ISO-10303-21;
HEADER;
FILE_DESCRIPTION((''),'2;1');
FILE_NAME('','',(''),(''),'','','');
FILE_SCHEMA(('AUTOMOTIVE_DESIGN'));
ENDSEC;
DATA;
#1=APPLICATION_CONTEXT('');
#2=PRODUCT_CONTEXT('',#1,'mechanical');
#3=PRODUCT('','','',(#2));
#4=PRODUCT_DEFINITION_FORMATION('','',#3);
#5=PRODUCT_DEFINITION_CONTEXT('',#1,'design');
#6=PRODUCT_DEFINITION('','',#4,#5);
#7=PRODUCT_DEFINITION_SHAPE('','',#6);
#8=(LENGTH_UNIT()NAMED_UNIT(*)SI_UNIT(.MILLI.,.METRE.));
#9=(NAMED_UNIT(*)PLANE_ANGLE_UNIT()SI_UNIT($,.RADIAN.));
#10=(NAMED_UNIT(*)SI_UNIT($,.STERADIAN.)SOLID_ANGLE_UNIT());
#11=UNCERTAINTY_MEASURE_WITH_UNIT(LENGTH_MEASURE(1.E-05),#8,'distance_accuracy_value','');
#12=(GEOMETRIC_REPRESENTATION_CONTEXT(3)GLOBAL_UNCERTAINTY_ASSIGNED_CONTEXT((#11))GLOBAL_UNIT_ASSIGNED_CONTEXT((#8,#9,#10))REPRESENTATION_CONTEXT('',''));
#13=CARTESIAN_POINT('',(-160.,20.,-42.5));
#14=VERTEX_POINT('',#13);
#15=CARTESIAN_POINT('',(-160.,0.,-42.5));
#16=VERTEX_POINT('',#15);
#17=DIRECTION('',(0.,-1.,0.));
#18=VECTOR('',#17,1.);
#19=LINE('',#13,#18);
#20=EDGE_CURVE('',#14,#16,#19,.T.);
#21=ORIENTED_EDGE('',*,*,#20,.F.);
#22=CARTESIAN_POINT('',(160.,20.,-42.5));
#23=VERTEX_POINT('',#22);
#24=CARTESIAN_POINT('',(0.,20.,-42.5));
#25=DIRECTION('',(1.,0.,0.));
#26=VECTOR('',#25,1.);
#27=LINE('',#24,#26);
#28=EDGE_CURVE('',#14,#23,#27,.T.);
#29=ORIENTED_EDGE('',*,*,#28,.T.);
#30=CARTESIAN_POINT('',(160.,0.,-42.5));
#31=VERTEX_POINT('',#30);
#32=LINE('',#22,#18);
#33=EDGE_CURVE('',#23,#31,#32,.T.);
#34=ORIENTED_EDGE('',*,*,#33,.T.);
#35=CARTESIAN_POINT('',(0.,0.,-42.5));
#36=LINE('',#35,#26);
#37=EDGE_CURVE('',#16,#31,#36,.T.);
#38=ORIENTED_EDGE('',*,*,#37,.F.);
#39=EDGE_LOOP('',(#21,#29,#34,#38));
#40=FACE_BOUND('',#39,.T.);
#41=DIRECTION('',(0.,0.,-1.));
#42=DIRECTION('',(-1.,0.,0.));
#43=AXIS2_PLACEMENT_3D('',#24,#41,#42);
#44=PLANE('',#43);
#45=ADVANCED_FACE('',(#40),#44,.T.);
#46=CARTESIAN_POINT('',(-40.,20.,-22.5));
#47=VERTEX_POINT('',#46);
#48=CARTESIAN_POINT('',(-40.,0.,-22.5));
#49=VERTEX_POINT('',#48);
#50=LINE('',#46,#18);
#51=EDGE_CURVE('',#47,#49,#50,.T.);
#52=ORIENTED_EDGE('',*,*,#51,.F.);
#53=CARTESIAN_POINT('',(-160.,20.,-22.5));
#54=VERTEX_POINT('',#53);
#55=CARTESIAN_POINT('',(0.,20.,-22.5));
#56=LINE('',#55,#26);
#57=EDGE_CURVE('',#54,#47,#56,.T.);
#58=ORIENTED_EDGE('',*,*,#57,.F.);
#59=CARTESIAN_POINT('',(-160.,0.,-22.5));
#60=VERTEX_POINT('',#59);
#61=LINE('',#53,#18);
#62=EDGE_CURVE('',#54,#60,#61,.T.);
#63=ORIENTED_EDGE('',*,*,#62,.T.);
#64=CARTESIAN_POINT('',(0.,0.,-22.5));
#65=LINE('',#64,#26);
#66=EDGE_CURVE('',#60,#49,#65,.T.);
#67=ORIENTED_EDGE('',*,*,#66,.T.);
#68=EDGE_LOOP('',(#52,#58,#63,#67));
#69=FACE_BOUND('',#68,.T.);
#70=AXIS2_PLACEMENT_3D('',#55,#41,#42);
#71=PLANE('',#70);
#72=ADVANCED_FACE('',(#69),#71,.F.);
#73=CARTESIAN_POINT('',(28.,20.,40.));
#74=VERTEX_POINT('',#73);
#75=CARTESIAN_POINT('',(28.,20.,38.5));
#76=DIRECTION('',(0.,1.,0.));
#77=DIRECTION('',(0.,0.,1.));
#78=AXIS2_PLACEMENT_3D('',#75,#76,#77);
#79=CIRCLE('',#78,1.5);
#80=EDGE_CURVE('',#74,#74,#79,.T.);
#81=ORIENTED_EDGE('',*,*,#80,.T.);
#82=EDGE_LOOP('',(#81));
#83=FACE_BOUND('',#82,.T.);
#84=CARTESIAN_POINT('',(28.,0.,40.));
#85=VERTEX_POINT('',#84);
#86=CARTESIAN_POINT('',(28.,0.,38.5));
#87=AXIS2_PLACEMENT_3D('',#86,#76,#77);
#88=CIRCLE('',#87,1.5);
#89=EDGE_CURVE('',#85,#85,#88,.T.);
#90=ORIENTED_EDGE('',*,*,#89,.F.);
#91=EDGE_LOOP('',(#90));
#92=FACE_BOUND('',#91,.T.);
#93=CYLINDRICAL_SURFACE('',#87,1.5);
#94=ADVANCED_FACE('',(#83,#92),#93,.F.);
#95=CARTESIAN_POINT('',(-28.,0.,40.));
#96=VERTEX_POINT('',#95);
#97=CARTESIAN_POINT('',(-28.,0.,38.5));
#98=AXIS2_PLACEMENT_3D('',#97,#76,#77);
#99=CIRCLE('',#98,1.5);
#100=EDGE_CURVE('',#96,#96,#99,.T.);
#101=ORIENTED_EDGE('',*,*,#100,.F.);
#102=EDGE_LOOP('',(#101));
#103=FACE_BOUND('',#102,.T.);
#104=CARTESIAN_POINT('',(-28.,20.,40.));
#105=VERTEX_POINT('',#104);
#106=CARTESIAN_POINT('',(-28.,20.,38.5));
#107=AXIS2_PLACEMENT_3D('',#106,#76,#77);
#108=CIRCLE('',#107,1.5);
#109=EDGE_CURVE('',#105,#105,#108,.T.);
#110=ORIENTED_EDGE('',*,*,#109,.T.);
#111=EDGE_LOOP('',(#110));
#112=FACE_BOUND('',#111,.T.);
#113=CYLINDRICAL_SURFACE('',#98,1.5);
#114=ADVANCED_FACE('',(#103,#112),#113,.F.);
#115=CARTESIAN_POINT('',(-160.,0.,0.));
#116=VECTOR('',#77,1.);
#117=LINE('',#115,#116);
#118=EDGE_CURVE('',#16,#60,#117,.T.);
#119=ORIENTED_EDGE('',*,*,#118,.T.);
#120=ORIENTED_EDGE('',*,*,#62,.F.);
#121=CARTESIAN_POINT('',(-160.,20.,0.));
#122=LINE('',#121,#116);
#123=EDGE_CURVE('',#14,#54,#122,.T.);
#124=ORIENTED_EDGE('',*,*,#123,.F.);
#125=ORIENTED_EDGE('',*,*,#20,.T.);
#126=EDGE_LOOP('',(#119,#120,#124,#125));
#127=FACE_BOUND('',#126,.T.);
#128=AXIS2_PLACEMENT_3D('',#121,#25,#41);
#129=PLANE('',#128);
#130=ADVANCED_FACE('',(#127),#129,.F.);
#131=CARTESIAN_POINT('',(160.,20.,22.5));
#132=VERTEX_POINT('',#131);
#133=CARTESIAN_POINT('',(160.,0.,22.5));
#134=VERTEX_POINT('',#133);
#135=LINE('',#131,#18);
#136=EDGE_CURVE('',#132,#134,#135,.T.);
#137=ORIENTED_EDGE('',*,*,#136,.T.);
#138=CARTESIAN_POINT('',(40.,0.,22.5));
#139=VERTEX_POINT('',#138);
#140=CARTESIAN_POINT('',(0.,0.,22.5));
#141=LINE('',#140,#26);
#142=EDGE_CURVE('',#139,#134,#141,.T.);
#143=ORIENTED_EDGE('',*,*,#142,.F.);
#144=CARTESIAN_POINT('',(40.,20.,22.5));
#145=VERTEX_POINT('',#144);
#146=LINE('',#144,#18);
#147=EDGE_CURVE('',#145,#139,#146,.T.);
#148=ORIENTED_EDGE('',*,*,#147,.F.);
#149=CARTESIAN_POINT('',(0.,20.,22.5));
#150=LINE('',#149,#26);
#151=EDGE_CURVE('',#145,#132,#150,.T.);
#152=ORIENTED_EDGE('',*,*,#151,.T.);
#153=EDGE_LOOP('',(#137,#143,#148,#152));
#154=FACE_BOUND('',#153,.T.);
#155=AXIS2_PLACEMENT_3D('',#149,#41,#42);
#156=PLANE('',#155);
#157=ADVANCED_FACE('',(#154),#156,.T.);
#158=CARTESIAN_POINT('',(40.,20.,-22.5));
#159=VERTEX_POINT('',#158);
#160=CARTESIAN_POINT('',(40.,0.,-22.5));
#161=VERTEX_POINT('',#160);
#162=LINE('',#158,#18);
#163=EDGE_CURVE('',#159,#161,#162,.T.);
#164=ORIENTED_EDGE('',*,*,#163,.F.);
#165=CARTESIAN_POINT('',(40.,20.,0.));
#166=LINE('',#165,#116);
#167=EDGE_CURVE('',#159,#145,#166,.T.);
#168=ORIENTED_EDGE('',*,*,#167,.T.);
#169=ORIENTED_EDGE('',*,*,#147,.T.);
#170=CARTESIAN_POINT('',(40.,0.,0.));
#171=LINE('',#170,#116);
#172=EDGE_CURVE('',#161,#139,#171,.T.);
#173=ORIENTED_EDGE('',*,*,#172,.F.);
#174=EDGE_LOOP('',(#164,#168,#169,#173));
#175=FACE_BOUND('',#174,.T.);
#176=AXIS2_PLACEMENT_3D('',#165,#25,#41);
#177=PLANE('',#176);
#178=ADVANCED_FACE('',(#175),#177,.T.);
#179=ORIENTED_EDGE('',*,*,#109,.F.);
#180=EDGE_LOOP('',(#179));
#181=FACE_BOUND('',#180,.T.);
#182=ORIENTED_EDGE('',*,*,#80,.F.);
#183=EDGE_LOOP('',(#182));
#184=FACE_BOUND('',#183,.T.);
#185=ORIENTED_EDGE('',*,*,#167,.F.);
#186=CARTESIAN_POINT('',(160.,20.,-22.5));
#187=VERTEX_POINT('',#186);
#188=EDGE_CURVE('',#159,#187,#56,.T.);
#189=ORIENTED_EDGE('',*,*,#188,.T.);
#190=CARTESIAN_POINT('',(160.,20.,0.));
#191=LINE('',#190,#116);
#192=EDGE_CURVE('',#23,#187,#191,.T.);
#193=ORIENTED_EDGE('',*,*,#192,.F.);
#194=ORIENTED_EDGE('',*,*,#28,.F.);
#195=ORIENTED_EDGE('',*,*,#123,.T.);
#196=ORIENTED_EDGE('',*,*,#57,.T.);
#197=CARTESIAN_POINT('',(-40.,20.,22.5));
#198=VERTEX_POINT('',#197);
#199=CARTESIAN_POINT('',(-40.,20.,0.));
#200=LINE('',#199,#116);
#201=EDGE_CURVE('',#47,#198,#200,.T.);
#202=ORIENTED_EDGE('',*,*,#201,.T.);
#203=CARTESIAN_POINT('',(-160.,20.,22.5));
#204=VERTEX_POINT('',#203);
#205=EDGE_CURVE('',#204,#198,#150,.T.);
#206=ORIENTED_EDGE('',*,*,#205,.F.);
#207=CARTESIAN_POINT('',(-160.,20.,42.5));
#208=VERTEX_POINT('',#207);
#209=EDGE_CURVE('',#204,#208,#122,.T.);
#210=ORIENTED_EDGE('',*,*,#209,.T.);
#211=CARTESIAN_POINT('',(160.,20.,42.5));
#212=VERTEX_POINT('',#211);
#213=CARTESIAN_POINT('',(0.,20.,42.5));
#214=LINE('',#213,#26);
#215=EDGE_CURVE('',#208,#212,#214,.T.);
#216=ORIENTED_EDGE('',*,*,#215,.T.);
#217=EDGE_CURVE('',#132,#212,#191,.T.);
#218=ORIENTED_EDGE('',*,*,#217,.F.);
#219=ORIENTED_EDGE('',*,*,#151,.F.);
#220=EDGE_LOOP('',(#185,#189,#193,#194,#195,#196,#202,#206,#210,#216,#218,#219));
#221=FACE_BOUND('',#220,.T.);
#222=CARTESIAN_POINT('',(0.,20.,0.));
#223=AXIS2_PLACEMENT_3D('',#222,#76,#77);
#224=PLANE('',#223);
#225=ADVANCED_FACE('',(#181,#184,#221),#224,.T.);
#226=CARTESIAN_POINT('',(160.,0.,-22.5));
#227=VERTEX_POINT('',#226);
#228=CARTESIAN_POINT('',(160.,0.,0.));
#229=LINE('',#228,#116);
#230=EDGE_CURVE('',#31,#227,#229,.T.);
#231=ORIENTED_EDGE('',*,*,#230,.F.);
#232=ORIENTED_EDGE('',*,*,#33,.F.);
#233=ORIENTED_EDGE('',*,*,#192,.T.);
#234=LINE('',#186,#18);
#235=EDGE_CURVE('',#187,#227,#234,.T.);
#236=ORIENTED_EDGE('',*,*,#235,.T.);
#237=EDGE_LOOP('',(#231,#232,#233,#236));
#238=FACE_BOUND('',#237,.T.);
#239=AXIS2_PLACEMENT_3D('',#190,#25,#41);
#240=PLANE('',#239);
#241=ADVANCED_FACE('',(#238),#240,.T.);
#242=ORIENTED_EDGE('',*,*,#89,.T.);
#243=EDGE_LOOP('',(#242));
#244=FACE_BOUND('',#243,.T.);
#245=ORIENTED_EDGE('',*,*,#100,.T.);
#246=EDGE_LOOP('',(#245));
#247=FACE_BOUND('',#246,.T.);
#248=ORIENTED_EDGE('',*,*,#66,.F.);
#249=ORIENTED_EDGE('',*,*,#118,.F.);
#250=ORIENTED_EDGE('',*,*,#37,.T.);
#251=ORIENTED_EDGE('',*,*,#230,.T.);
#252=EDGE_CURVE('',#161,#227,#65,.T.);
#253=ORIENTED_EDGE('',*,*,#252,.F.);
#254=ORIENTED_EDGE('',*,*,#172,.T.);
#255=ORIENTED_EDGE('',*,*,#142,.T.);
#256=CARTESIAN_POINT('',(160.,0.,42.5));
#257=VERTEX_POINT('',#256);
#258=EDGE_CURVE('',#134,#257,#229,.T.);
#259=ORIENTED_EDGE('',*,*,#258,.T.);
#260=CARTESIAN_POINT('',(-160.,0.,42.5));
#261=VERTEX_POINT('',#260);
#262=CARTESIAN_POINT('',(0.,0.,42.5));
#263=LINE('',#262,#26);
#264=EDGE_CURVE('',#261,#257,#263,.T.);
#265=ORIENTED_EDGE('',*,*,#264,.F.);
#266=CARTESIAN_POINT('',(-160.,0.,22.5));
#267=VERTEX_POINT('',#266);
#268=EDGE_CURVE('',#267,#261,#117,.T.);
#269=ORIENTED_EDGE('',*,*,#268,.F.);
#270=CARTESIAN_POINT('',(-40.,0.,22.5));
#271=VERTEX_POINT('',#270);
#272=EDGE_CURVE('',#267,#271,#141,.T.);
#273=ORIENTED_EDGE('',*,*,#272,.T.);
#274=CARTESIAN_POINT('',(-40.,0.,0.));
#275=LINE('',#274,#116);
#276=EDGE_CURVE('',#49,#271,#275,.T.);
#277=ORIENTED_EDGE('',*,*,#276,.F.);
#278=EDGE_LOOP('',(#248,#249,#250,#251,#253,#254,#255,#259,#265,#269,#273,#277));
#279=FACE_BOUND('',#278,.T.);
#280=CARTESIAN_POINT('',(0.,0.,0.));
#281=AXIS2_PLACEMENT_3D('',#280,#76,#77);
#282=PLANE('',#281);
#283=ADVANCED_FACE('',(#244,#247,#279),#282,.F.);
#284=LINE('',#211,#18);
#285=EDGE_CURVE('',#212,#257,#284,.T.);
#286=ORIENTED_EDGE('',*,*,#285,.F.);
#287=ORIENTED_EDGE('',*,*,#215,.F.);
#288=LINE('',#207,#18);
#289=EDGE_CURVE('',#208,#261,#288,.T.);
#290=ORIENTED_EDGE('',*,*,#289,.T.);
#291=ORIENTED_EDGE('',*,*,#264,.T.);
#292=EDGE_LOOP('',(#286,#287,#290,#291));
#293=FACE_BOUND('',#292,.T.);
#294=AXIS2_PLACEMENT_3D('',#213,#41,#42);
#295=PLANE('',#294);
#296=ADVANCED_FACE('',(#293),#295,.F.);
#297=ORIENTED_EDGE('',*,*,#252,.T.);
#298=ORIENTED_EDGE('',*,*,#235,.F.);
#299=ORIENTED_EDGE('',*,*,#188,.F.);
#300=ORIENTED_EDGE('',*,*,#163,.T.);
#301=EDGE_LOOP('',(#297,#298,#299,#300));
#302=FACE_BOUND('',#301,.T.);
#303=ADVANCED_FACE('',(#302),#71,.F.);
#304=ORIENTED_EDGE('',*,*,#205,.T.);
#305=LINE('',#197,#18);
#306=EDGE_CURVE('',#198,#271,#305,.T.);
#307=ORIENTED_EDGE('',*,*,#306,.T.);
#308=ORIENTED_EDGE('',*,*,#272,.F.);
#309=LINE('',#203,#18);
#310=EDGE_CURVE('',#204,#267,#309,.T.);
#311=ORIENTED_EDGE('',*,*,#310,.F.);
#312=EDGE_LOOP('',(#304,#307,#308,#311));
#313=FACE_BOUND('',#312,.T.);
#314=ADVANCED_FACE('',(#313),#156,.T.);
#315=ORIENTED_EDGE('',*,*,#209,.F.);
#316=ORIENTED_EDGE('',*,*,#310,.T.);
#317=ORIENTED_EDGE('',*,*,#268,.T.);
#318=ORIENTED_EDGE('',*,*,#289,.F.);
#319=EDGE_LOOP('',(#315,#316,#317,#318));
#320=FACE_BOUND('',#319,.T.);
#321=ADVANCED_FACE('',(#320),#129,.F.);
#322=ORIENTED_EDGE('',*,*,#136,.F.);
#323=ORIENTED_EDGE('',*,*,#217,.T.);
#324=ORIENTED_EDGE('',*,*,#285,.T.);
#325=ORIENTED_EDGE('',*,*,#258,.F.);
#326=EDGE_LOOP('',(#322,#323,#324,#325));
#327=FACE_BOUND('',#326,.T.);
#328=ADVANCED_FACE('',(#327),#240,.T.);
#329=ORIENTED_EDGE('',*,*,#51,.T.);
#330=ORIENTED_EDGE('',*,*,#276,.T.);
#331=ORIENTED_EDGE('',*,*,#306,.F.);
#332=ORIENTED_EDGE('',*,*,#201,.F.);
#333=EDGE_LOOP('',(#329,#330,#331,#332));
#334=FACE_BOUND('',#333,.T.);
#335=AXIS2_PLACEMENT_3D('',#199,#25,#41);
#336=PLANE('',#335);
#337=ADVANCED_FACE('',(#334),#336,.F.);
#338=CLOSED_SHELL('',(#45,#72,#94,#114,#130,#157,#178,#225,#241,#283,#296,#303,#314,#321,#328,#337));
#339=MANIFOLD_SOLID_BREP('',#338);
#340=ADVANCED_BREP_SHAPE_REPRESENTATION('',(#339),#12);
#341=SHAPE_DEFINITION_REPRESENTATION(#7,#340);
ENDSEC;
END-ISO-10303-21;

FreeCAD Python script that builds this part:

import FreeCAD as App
import Part
import Sketcher

V = App.Vector
Q = App.Units.Quantity


def add_polygon(sketch, points):
    """Adds a closed chain of lines whose ends are joined by coincident constraints."""
    first, n = sketch.GeometryCount, len(points)
    for a, b in zip(points, points[1:] + points[:1]):
        sketch.addGeometry(Part.LineSegment(App.Vector(*a, 0), App.Vector(*b, 0)), False)
    for i in range(n):
        sketch.addConstraint(Sketcher.Constraint("Coincident", first + i, 2, first + (i + 1) % n, 1))

doc = App.newDocument("Part")
body = doc.addObject("PartDesign::Body", "Body")

# Sketch on XZ plane
sketch1 = body.newObject("Sketcher::SketchObject", "Sketch")
sketch1.AttachmentSupport = (doc.getObject("XZ_Plane"), [""])
sketch1.MapMode = "FlatFace"
add_polygon(sketch1, [(-160, 22), (-160, 42), (160, 42), (160, 22), (40, 22), (40, -22), (160, -22), (160, -42), (-160, -42), (-160, -22), (-40, -22), (-40, 22)])  # lines 0-11
sketch1.addConstraint([
    Sketcher.Constraint("Vertical", 0),
    Sketcher.Constraint("Horizontal", 1),
    Sketcher.Constraint("Vertical", 2),
    Sketcher.Constraint("Horizontal", 3),
    Sketcher.Constraint("Vertical", 4),
    Sketcher.Constraint("Horizontal", 5),
    Sketcher.Constraint("Vertical", 6),
    Sketcher.Constraint("Horizontal", 7),
    Sketcher.Constraint("Vertical", 8),
    Sketcher.Constraint("Horizontal", 9),
    Sketcher.Constraint("Vertical", 10),
    Sketcher.Constraint("Horizontal", 11),
    Sketcher.Constraint("Symmetric", 0, 2, 6, 2, -1, 1),
    Sketcher.Constraint("Symmetric", 2, 2, 8, 2, -1, 1),
    Sketcher.Constraint("Symmetric", 4, 2, 10, 2, -1, 1),
    Sketcher.Constraint("Symmetric", 5, 2, 8, 2, -2),
    Sketcher.Constraint("DistanceX", 1, 1, 1, 2, Q("320 mm")),
    Sketcher.Constraint("DistanceX", 3, 2, 3, 1, Q("120 mm")),
    Sketcher.Constraint("DistanceY", 0, 1, 0, 2, Q("20 mm")),
    Sketcher.Constraint("DistanceY", 4, 2, 4, 1, Q("45 mm")),
])
pad1 = body.newObject("PartDesign::Pad", "Pad")
pad1.Profile = sketch1
pad1.Length = 20
pad1.Reversed = True

# Sketch on XZ plane
sketch2 = body.newObject("Sketcher::SketchObject", "Sketch001")
sketch2.AttachmentSupport = (doc.getObject("XZ_Plane"), [""])
sketch2.MapMode = "FlatFace"
sketch2.AttachmentOffset = App.Placement(V(0, 0, -20), App.Rotation())
sketch2.addGeometry([
    Part.Circle(V(-28, 38.5, 0), V(0, 0, 1), 1.5),
    Part.Circle(V(28, 38.5, 0), V(0, 0, 1), 1.5),
], False)
sketch2.addConstraint([
    Sketcher.Constraint("Equal", 0, 1),
    Sketcher.Constraint("Symmetric", 0, 3, 1, 3, -2),
    Sketcher.Constraint("Diameter", 0, Q("3 mm")),
    Sketcher.Constraint("DistanceX", 0, 3, -1, 1, Q("28 mm")),
    Sketcher.Constraint("DistanceY", -1, 1, 0, 3, Q("38.5 mm")),
])
pocket1 = body.newObject("PartDesign::Pocket", "Pocket")
pocket1.Profile = sketch2
pocket1.Length = 20
pocket1.Reversed = True

doc.recompute()
